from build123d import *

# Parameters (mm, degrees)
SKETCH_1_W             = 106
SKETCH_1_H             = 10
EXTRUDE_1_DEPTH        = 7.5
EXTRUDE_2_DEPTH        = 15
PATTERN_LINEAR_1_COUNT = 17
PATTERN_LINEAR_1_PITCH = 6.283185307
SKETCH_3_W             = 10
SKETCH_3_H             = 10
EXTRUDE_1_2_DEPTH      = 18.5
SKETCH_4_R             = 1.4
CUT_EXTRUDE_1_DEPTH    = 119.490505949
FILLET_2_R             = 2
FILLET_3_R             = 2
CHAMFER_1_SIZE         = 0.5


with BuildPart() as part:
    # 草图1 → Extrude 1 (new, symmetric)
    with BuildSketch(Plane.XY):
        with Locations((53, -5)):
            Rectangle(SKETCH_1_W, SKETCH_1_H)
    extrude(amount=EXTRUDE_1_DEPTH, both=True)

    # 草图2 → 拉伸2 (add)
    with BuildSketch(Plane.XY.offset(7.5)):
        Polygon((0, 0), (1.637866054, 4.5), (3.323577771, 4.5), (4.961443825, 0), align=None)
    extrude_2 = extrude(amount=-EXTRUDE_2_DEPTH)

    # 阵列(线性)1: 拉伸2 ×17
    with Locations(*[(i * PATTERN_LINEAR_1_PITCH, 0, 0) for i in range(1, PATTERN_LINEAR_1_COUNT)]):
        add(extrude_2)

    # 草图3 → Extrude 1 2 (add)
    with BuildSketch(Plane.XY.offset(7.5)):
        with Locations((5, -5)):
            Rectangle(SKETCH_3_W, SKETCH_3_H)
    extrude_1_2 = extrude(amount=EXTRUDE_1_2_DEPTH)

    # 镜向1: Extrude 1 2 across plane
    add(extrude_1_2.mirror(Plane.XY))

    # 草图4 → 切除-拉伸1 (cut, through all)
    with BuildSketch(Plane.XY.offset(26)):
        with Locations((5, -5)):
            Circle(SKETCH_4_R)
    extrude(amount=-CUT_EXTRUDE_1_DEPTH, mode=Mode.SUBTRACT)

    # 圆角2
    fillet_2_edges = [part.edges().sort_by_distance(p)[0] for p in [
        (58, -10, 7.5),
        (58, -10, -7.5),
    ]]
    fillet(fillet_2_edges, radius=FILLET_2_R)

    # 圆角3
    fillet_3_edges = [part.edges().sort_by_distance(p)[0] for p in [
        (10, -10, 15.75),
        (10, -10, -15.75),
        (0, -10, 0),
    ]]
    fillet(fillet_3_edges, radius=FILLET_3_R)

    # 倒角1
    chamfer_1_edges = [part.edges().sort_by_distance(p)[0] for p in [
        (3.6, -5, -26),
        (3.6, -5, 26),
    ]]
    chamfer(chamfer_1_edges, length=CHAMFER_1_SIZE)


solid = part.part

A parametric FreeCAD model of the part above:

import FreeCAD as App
import Part
import Sketcher
Q = App.Units.Quantity


def edges_at(feature, points):
    """Names of the edges that pass closest to the given points."""
    edges = feature.Shape.Edges
    near = lambda p: min(range(len(edges)), key=lambda i: edges[i].distToShape(Part.Vertex(*p))[0])
    return sorted({f"Edge{near(p) + 1}" for p in points})

doc = App.newDocument("Part")
body = doc.addObject("PartDesign::Body", "Body")

# Sketch on XY plane
sketch1 = doc.addObject("Sketcher::SketchObject", "Sketch")
body.addObject(sketch1)
sketch1.AttachmentSupport = (doc.XY_Plane, [""])
sketch1.MapMode = "FlatFace"
sketch1.addGeometry([
    Part.LineSegment(App.Vector(0, 0, 0), App.Vector(0, -10, 0)),
    Part.LineSegment(App.Vector(0, -10, 0), App.Vector(106, -10, 0)),
    Part.LineSegment(App.Vector(106, -10, 0), App.Vector(106, 0, 0)),
    Part.LineSegment(App.Vector(106, 0, 0), App.Vector(0, 0, 0)),
], False)
sketch1.addConstraint([
    Sketcher.Constraint("Coincident", 0, 2, 1, 1),
    Sketcher.Constraint("Coincident", 1, 2, 2, 1),
    Sketcher.Constraint("Coincident", 2, 2, 3, 1),
    Sketcher.Constraint("Coincident", 3, 2, 0, 1),
    Sketcher.Constraint("Vertical", 0),
    Sketcher.Constraint("Horizontal", 1),
    Sketcher.Constraint("Vertical", 2),
    Sketcher.Constraint("Horizontal", 3),
    Sketcher.Constraint("Coincident", 3, 2, -1, 1),
    Sketcher.Constraint("DistanceX", 1, 1, 1, 2, 106.0),
    Sketcher.Constraint("DistanceY", 0, 2, 0, 1, 10.0),
])
pad1 = doc.addObject("PartDesign::Pad", "Pad")
body.addObject(pad1)
pad1.Profile = sketch1
pad1.Length = 15
pad1.Midplane = True

# Sketch on XY plane
sketch2 = doc.addObject("Sketcher::SketchObject", "Sketch001")
body.addObject(sketch2)
sketch2.AttachmentSupport = (doc.XY_Plane, [""])
sketch2.MapMode = "FlatFace"
sketch2.AttachmentOffset = App.Placement(App.Vector(0, 0, 7.5), App.Rotation())
sketch2.addGeometry([
    Part.LineSegment(App.Vector(1.6, 4.5, 0), App.Vector(0, 0, 0)),
    Part.LineSegment(App.Vector(0, 0, 0), App.Vector(5, 0, 0)),
    Part.LineSegment(App.Vector(5, 0, 0), App.Vector(3.3, 4.5, 0)),
    Part.LineSegment(App.Vector(3.3, 4.5, 0), App.Vector(1.6, 4.5, 0)),
], False)
sketch2.addConstraint([
    Sketcher.Constraint("Coincident", 0, 2, 1, 1),
    Sketcher.Constraint("Coincident", 1, 2, 2, 1),
    Sketcher.Constraint("Coincident", 2, 2, 3, 1),
    Sketcher.Constraint("Coincident", 3, 2, 0, 1),
    Sketcher.Constraint("Horizontal", 1),
    Sketcher.Constraint("Horizontal", 3),
    Sketcher.Constraint("Coincident", 0, 2, -1, 1),
    Sketcher.Constraint("Equal", 0, 2),
    Sketcher.Constraint("Angle", 0, Q("-110 deg")),
    Sketcher.Constraint("DistanceY", -1, 1, 2, 2, 4.5),
    Sketcher.Constraint("DistanceX", 3, 2, 3, 1, 1.685712),
])
pad2 = doc.addObject("PartDesign::Pad", "Pad001")
body.addObject(pad2)
pad2.Profile = sketch2
pad2.Length = 15
pad2.Reversed = True
doc.recompute()

linearpattern = doc.addObject("PartDesign::LinearPattern", "LinearPattern")
body.addObject(linearpattern)
linearpattern.Originals = [pad2]
linearpattern.Direction = (doc.X_Axis, [""])
linearpattern.Mode = "offset"
linearpattern.Offset = 6.283185
linearpattern.Occurrences = 17
body.Tip = linearpattern

# Sketch on XY plane
sketch3 = doc.addObject("Sketcher::SketchObject", "Sketch002")
body.addObject(sketch3)
sketch3.AttachmentSupport = (doc.XY_Plane, [""])
sketch3.MapMode = "FlatFace"
sketch3.AttachmentOffset = App.Placement(App.Vector(0, 0, 7.5), App.Rotation())
sketch3.addGeometry([
    Part.LineSegment(App.Vector(0, 0, 0), App.Vector(0, -10, 0)),
    Part.LineSegment(App.Vector(0, -10, 0), App.Vector(10, -10, 0)),
    Part.LineSegment(App.Vector(10, -10, 0), App.Vector(10, 0, 0)),
    Part.LineSegment(App.Vector(10, 0, 0), App.Vector(0, 0, 0)),
], False)
sketch3.addConstraint([
    Sketcher.Constraint("Coincident", 0, 2, 1, 1),
    Sketcher.Constraint("Coincident", 1, 2, 2, 1),
    Sketcher.Constraint("Coincident", 2, 2, 3, 1),
    Sketcher.Constraint("Coincident", 3, 2, 0, 1),
    Sketcher.Constraint("Vertical", 0),
    Sketcher.Constraint("Horizontal", 1),
    Sketcher.Constraint("Vertical", 2),
    Sketcher.Constraint("Horizontal", 3),
    Sketcher.Constraint("Coincident", 3, 2, -1, 1),
    Sketcher.Constraint("Equal", 3, 0),
    Sketcher.Constraint("DistanceX", 1, 1, 1, 2, 10.0),
])
pad3 = doc.addObject("PartDesign::Pad", "Pad002")
body.addObject(pad3)
pad3.Profile = sketch3
pad3.Length = 18.5
doc.recompute()

mirrored = doc.addObject("PartDesign::Mirrored", "Mirrored")
body.addObject(mirrored)
mirrored.Originals = [pad3]
mirrored.MirrorPlane = (doc.XY_Plane, [""])
body.Tip = mirrored

# Sketch on XY plane
sketch4 = doc.addObject("Sketcher::SketchObject", "Sketch003")
body.addObject(sketch4)
sketch4.AttachmentSupport = (doc.XY_Plane, [""])
sketch4.MapMode = "FlatFace"
sketch4.AttachmentOffset = App.Placement(App.Vector(0, 0, 26), App.Rotation())
sketch4.addGeometry(Part.Circle(App.Vector(5, -5, 0), App.Vector(0, 0, 1), 1.4), False)
sketch4.addConstraint([
    Sketcher.Constraint("Diameter", 0, 2.8),
    Sketcher.Constraint("DistanceX", -1, 1, 0, 3, 5.0),
    Sketcher.Constraint("DistanceY", 0, 3, -1, 1, 5.0),
])
pocket1 = doc.addObject("PartDesign::Pocket", "Pocket")
body.addObject(pocket1)
pocket1.Profile = sketch4
pocket1.Type = "ThroughAll"
doc.recompute()

fillet = doc.addObject("PartDesign::Fillet", "Fillet")
body.addObject(fillet)
fillet.Base = (pocket1, edges_at(pocket1, [(58, -10, 7.5), (58, -10, -7.5)]))
fillet.Radius = 2
doc.recompute()

fillet2 = doc.addObject("PartDesign::Fillet", "Fillet001")
body.addObject(fillet2)
fillet2.Base = (fillet, edges_at(fillet, [(10, -10, 15.75), (10, -10, -15.75), (0, -10, 0)]))
fillet2.Radius = 2
doc.recompute()

chamfer = doc.addObject("PartDesign::Chamfer", "Chamfer")
body.addObject(chamfer)
chamfer.Base = (fillet2, edges_at(fillet2, [(3.6, -5, -26), (3.6, -5, 26)]))
chamfer.Size = 0.5

doc.recompute()
